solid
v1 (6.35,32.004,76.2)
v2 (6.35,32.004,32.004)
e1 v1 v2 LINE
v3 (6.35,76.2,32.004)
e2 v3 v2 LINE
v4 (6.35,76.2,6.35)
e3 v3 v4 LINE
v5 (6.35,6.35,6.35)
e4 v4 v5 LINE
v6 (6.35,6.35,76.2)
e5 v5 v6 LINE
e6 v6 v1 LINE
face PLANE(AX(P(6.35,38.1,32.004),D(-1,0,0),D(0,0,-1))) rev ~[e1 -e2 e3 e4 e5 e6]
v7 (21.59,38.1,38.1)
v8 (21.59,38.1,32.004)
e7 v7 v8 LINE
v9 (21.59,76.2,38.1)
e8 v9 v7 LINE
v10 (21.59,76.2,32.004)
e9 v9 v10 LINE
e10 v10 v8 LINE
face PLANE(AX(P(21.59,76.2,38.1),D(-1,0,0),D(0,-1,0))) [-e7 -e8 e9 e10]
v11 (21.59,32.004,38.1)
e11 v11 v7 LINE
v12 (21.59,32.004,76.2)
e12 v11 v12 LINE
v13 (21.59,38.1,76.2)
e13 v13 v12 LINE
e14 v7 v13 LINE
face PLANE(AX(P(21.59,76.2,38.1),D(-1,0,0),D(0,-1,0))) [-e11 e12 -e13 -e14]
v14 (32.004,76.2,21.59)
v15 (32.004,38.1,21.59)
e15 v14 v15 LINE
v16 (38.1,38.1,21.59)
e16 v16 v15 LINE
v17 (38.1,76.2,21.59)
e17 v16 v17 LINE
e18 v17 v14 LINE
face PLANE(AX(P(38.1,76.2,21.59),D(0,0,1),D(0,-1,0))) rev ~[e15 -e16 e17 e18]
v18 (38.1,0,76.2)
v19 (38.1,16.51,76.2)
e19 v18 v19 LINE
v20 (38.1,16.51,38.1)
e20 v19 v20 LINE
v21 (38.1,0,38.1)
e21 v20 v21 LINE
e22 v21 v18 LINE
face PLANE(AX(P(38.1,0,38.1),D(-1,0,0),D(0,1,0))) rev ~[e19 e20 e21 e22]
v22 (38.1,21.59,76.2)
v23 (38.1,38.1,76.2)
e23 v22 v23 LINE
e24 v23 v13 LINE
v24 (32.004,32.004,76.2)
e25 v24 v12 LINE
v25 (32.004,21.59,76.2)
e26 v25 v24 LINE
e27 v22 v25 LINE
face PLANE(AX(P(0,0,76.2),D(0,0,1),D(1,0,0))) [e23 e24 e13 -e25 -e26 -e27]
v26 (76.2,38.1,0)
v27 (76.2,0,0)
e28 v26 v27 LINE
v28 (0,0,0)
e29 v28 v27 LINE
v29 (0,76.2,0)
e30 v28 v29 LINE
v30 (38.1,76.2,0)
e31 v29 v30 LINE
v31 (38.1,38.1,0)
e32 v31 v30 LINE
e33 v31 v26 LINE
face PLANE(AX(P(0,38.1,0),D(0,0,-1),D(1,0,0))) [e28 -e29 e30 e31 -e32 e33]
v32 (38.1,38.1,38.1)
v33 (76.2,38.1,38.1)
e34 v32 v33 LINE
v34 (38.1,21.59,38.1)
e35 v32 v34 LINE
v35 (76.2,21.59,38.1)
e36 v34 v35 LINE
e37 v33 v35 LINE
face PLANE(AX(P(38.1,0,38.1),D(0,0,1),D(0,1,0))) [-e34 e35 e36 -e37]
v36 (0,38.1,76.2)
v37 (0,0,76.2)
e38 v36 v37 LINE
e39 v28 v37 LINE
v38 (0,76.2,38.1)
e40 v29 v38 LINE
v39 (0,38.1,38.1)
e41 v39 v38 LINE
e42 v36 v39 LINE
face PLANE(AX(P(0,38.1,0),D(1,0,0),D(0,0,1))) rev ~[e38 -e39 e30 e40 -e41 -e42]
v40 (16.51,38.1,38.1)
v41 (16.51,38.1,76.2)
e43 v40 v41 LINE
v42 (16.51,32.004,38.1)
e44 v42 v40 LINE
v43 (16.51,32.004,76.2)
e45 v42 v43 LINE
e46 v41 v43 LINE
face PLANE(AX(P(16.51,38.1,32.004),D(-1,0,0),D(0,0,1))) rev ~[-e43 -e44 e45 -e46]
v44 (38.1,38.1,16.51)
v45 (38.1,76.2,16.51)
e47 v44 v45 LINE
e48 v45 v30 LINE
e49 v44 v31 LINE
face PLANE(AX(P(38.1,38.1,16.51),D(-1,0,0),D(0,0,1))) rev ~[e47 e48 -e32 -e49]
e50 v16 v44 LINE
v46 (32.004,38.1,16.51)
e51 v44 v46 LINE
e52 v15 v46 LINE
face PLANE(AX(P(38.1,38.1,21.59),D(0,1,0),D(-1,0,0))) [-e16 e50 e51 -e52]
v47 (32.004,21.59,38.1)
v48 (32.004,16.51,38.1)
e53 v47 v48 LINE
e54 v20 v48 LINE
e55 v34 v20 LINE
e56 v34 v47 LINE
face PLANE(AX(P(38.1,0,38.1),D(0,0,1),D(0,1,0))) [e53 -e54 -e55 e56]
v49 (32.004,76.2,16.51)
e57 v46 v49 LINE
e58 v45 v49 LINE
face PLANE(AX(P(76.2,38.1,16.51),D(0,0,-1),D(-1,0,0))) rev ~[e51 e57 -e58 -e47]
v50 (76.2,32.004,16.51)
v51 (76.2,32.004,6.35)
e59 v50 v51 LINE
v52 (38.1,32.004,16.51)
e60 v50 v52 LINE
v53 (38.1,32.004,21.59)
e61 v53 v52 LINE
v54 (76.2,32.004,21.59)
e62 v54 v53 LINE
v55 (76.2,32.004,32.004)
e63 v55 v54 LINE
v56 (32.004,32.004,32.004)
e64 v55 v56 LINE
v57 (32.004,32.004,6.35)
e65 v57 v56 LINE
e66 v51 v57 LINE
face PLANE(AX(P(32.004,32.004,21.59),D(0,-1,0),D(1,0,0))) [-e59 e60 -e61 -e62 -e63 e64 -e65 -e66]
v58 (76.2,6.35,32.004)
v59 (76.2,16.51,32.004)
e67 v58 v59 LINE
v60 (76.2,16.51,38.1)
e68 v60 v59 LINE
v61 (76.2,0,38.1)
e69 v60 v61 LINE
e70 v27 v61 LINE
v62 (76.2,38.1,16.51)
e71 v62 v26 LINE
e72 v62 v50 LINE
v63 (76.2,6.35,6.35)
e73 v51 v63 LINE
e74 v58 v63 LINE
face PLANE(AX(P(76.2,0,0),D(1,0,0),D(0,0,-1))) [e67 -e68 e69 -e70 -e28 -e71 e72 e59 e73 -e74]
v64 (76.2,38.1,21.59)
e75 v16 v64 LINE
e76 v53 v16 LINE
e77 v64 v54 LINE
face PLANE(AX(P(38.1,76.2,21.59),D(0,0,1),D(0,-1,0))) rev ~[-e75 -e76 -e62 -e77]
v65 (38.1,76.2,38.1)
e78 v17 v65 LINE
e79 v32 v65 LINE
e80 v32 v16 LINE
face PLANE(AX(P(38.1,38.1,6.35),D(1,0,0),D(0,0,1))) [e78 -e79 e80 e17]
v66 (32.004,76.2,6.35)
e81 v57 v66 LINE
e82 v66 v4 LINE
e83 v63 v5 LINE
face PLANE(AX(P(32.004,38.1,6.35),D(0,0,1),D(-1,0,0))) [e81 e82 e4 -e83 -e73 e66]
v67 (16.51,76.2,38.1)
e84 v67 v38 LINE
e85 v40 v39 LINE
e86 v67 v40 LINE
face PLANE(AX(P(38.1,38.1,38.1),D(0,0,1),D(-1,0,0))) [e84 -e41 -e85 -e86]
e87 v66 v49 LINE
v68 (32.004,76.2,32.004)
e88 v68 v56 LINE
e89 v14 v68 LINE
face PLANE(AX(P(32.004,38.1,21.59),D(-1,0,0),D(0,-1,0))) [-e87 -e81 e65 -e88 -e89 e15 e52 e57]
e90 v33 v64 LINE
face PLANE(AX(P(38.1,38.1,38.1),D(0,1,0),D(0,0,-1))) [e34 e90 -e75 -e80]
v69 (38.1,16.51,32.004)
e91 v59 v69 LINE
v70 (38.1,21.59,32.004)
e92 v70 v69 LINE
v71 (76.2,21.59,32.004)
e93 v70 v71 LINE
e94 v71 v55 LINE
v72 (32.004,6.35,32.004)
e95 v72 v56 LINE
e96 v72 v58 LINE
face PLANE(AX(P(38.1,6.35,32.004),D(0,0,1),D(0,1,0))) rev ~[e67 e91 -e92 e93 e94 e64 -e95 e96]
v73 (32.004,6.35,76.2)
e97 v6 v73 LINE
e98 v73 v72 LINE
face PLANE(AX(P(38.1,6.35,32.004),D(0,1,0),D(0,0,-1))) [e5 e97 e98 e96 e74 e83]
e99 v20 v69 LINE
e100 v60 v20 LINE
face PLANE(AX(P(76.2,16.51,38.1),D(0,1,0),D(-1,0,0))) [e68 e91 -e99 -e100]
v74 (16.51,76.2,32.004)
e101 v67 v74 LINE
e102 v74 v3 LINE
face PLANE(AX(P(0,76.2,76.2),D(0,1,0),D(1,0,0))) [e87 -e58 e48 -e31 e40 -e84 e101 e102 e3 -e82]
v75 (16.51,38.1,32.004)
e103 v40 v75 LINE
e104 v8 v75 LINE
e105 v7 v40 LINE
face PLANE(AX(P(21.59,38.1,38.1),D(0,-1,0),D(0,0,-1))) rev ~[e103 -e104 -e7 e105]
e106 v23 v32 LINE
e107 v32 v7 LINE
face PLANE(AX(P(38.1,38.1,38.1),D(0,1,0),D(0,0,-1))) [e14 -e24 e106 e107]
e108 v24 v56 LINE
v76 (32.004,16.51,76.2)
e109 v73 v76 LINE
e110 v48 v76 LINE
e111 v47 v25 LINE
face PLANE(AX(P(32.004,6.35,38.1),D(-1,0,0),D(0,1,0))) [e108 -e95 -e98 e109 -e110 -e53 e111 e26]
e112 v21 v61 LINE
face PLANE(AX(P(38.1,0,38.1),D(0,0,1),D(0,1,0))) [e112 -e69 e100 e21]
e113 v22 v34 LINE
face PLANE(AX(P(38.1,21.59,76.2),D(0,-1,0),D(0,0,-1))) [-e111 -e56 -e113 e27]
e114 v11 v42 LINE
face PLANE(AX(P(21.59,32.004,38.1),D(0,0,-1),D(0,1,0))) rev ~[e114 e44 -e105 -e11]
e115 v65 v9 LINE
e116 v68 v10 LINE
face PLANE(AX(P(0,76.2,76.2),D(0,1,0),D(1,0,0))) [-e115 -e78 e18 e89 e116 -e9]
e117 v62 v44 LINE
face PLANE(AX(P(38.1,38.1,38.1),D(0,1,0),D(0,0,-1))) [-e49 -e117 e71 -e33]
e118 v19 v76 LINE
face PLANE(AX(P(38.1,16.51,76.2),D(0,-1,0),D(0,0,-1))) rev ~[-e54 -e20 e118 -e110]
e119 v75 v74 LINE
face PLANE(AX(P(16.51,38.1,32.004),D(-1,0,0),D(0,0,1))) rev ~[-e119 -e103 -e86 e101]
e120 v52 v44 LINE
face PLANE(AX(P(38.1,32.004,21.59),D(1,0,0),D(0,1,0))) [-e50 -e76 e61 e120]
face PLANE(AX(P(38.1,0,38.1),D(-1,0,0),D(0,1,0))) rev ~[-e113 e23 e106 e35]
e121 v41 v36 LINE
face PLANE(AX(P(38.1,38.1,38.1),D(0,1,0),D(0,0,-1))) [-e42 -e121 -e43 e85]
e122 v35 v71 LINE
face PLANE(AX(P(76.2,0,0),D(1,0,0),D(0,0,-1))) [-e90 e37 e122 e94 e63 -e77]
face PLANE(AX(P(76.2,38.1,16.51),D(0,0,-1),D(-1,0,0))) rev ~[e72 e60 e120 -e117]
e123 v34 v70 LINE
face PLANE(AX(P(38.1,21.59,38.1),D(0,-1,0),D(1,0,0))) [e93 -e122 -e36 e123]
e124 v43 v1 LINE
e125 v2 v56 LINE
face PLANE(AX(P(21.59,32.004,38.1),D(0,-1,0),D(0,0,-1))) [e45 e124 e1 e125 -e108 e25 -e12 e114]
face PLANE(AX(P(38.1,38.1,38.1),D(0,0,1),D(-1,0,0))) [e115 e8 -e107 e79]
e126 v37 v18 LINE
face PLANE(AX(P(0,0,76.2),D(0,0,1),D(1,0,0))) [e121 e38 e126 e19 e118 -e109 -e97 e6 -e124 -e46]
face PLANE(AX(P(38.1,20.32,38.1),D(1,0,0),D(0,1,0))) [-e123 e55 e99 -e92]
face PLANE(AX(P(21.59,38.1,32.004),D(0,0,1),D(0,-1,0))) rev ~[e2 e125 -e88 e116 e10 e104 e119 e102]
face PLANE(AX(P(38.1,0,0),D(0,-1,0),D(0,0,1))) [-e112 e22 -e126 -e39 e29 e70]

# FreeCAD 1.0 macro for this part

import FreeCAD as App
import Part
import Sketcher
from FreeCAD import Vector
Q = App.Units.Quantity

doc = App.newDocument("Part")
body = doc.addObject("PartDesign::Body", "Body")

# Sketch on XY plane
sketch1 = doc.addObject("Sketcher::SketchObject", "Sketch")
body.addObject(sketch1)
sketch1.AttachmentSupport = (doc.XY_Plane, [""])
sketch1.MapMode = "FlatFace"
sketch1.addGeometry([
    Part.LineSegment(Vector(0, 38, 0), Vector(0, 0, 0)),
    Part.LineSegment(Vector(0, 0, 0), Vector(38, 0, 0)),
    Part.LineSegment(Vector(38, 0, 0), Vector(38, 38, 0)),
    Part.LineSegment(Vector(38, 38, 0), Vector(0, 38, 0)),
], False)
sketch1.addConstraint([
    Sketcher.Constraint("Coincident", 0, 2, 1, 1),
    Sketcher.Constraint("Coincident", 1, 2, 2, 1),
    Sketcher.Constraint("Coincident", 2, 2, 3, 1),
    Sketcher.Constraint("Coincident", 3, 2, 0, 1),
    Sketcher.Constraint("Vertical", 0),
    Sketcher.Constraint("Horizontal", 1),
    Sketcher.Constraint("Vertical", 2),
    Sketcher.Constraint("Horizontal", 3),
    Sketcher.Constraint("Coincident", 0, 2, -1, 1),
    Sketcher.Constraint("Equal", 3, 0),
    Sketcher.Constraint("DistanceX", 1, 1, 1, 2, Q("1.5 in")),
])
pad1 = doc.addObject("PartDesign::Pad", "Pad")
body.addObject(pad1)
pad1.Profile = sketch1
pad1.Length = Q("1.5 in")

# Sketch on XY plane
sketch2 = doc.addObject("Sketcher::SketchObject", "Sketch001")
body.addObject(sketch2)
sketch2.AttachmentSupport = (doc.XY_Plane, [""])
sketch2.MapMode = "FlatFace"
sketch2.AttachmentOffset = App.Placement(Vector(0, 0, 1.5 * 25.4), App.Rotation())
sketch2.addGeometry([
    Part.LineSegment(Vector(6, 32, 0), Vector(6, 6, 0)),
    Part.LineSegment(Vector(6, 6, 0), Vector(32, 6, 0)),
    Part.LineSegment(Vector(32, 6, 0), Vector(32, 32, 0)),
    Part.LineSegment(Vector(32, 32, 0), Vector(6, 32, 0)),
], False)
sketch2.addConstraint([
    Sketcher.Constraint("Coincident", 0, 2, 1, 1),
    Sketcher.Constraint("Coincident", 1, 2, 2, 1),
    Sketcher.Constraint("Coincident", 2, 2, 3, 1),
    Sketcher.Constraint("Coincident", 3, 2, 0, 1),
    Sketcher.Constraint("Vertical", 0),
    Sketcher.Constraint("Horizontal", 1),
    Sketcher.Constraint("Vertical", 2),
    Sketcher.Constraint("Horizontal", 3),
    Sketcher.Constraint("Equal", 3, 0),
    Sketcher.Constraint("DistanceX", 1, 1, 1, 2, Q("1.01 in")),
    Sketcher.Constraint("DistanceX", -1, 1, 0, 2, Q("0.25 in")),
    Sketcher.Constraint("DistanceY", -1, 1, 0, 2, Q("0.25 in")),
])
pocket1 = doc.addObject("PartDesign::Pocket", "Pocket")
body.addObject(pocket1)
pocket1.Profile = sketch2
pocket1.Length = Q("1.25 in")

# Sketch on XY plane
sketch3 = doc.addObject("Sketcher::SketchObject", "Sketch002")
body.addObject(sketch3)
sketch3.AttachmentSupport = (doc.XY_Plane, [""])
sketch3.MapMode = "FlatFace"
sketch3.AttachmentOffset = App.Placement(Vector(0, 0, 1.5 * 25.4), App.Rotation())
sketch3.addGeometry([
    Part.LineSegment(Vector(0, 38, 0), Vector(0, 0, 0)),  # 0
    Part.LineSegment(Vector(0, 0, 0), Vector(38, 0, 0)),  # 1
    Part.LineSegment(Vector(38, 0, 0), Vector(38, 38, 0)),  # 2
    Part.LineSegment(Vector(38, 38, 0), Vector(0, 38, 0)),  # 3
    Part.LineSegment(Vector(32, 6, 0), Vector(6, 6, 0)),  # 4
    Part.LineSegment(Vector(6, 6, 0), Vector(6, 32, 0)),  # 5
    Part.LineSegment(Vector(6, 32, 0), Vector(32, 32, 0)),  # 6
    Part.LineSegment(Vector(32, 32, 0), Vector(32, 6, 0)),  # 7
], False)
sketch3.addConstraint([
    Sketcher.Constraint("Coincident", 0, 2, 1, 1),
    Sketcher.Constraint("Coincident", 1, 2, 2, 1),
    Sketcher.Constraint("Coincident", 2, 2, 3, 1),
    Sketcher.Constraint("Coincident", 3, 2, 0, 1),
    Sketcher.Constraint("Coincident", 4, 2, 5, 1),
    Sketcher.Constraint("Coincident", 5, 2, 6, 1),
    Sketcher.Constraint("Coincident", 6, 2, 7, 1),
    Sketcher.Constraint("Coincident", 7, 2, 4, 1),
    Sketcher.Constraint("Vertical", 0),
    Sketcher.Constraint("Horizontal", 1),
    Sketcher.Constraint("Vertical", 2),
    Sketcher.Constraint("Horizontal", 3),
    Sketcher.Constraint("Horizontal", 4),
    Sketcher.Constraint("Vertical", 5),
    Sketcher.Constraint("Horizontal", 6),
    Sketcher.Constraint("Vertical", 7),
    Sketcher.Constraint("Coincident", 0, 2, -1, 1),
    Sketcher.Constraint("Equal", 3, 0),
    Sketcher.Constraint("Equal", 6, 5),
    Sketcher.Constraint("DistanceX", 1, 1, 1, 2, Q("1.5 in")),
    Sketcher.Constraint("DistanceX", 4, 2, 4, 1, Q("1.01 in")),
    Sketcher.Constraint("DistanceX", -1, 1, 4, 2, Q("0.25 in")),
    Sketcher.Constraint("DistanceY", -1, 1, 4, 2, Q("0.25 in")),
])
pad2 = doc.addObject("PartDesign::Pad", "Pad001")
body.addObject(pad2)
pad2.Profile = sketch3
pad2.Length = Q("1.5 in")

# Sketch on YZ plane
sketch4 = doc.addObject("Sketcher::SketchObject", "Sketch003")
body.addObject(sketch4)
sketch4.AttachmentSupport = (doc.YZ_Plane, [""])
sketch4.MapMode = "FlatFace"
sketch4.AttachmentOffset = App.Placement(Vector(0, 0, 1.5 * 25.4), App.Rotation())
sketch4.addGeometry([
    Part.LineSegment(Vector(0, 38, 0), Vector(0, 0, 0)),  # 0
    Part.LineSegment(Vector(0, 0, 0), Vector(38, 0, 0)),  # 1
    Part.LineSegment(Vector(38, 0, 0), Vector(38, 38, 0)),  # 2
    Part.LineSegment(Vector(38, 38, 0), Vector(6, 38, 0)),  # 3
    Part.LineSegment(Vector(6, 38, 0), Vector(0, 38, 0)),  # 4
    Part.LineSegment(Vector(6, 6, 0), Vector(6, 32, 0)),  # 5
    Part.LineSegment(Vector(6, 32, 0), Vector(32, 32, 0)),  # 6
    Part.LineSegment(Vector(32, 32, 0), Vector(32, 6, 0)),  # 7
    Part.LineSegment(Vector(32, 6, 0), Vector(6, 6, 0)),  # 8
], False)
sketch4.addConstraint([
    Sketcher.Constraint("Coincident", 0, 2, 1, 1),
    Sketcher.Constraint("Coincident", 1, 2, 2, 1),
    Sketcher.Constraint("Coincident", 2, 2, 3, 1),
    Sketcher.Constraint("Coincident", 3, 2, 4, 1),
    Sketcher.Constraint("Coincident", 4, 2, 0, 1),
    Sketcher.Constraint("Coincident", 5, 2, 6, 1),
    Sketcher.Constraint("Coincident", 6, 2, 7, 1),
    Sketcher.Constraint("Coincident", 7, 2, 8, 1),
    Sketcher.Constraint("Coincident", 8, 2, 5, 1),
    Sketcher.Constraint("Vertical", 0),
    Sketcher.Constraint("Horizontal", 1),
    Sketcher.Constraint("Vertical", 2),
    Sketcher.Constraint("Horizontal", 3),
    Sketcher.Constraint("Horizontal", 4),
    Sketcher.Constraint("Vertical", 5),
    Sketcher.Constraint("Horizontal", 6),
    Sketcher.Constraint("Vertical", 7),
    Sketcher.Constraint("Horizontal", 8),
    Sketcher.Constraint("Coincident", 0, 2, -1, 1),
    Sketcher.Constraint("Vertical", 3, 2, 5, 2),
    Sketcher.Constraint("Equal", 1, 0),
    Sketcher.Constraint("Equal", 8, 5),
    Sketcher.Constraint("DistanceX", 1, 1, 1, 2, Q("1.5 in")),
    Sketcher.Constraint("DistanceX", 6, 1, 6, 2, Q("1.01 in")),
    Sketcher.Constraint("DistanceX", 3, 2, 3, 1, Q("1.25 in")),
    Sketcher.Constraint("DistanceY", -1, 1, 5, 2, Q("1.26 in")),
])
pad3 = doc.addObject("PartDesign::Pad", "Pad002")
body.addObject(pad3)
pad3.Profile = sketch4
pad3.Length = Q("1.5 in")

# Sketch on YZ plane
sketch5 = doc.addObject("Sketcher::SketchObject", "Sketch004")
body.addObject(sketch5)
sketch5.AttachmentSupport = (doc.YZ_Plane, [""])
sketch5.MapMode = "FlatFace"
sketch5.AttachmentOffset = App.Placement(Vector(0, 0, 1.5 * 25.4), App.Rotation())
sketch5.addGeometry([
    Part.LineSegment(Vector(32, 32, 0), Vector(6, 32, 0)),
    Part.LineSegment(Vector(6, 32, 0), Vector(6, 6, 0)),
    Part.LineSegment(Vector(6, 6, 0), Vector(32, 6, 0)),
    Part.LineSegment(Vector(32, 6, 0), Vector(32, 32, 0)),
], False)
sketch5.addConstraint([
    Sketcher.Constraint("Coincident", 0, 2, 1, 1),
    Sketcher.Constraint("Coincident", 1, 2, 2, 1),
    Sketcher.Constraint("Coincident", 2, 2, 3, 1),
    Sketcher.Constraint("Coincident", 3, 2, 0, 1),
    Sketcher.Constraint("Horizontal", 0),
    Sketcher.Constraint("Vertical", 1),
    Sketcher.Constraint("Horizontal", 2),
    Sketcher.Constraint("Vertical", 3),
    Sketcher.Constraint("Equal", 2, 1),
    Sketcher.Constraint("DistanceX", 0, 2, 0, 1, Q("1.01 in")),
    Sketcher.Constraint("DistanceX", -1, 1, 0, 2, Q("0.25 in")),
    Sketcher.Constraint("DistanceY", -1, 1, 0, 2, Q("1.26 in")),
])
pocket2 = doc.addObject("PartDesign::Pocket", "Pocket001")
body.addObject(pocket2)
pocket2.Profile = sketch5
pocket2.Length = Q("1.25 in")

# Sketch on XZ plane
sketch6 = doc.addObject("Sketcher::SketchObject", "Sketch005")
body.addObject(sketch6)
sketch6.AttachmentSupport = (doc.XZ_Plane, [""])
sketch6.MapMode = "FlatFace"
sketch6.AttachmentOffset = App.Placement(Vector(0, 0, -1.5 * 25.4), App.Rotation())
sketch6.addGeometry([
    Part.LineSegment(Vector(38, 38, 0), Vector(38, 6, 0)),  # 0
    Part.LineSegment(Vector(38, 6, 0), Vector(38, 0, 0)),  # 1
    Part.LineSegment(Vector(38, 0, 0), Vector(0, 0, 0)),  # 2
    Part.LineSegment(Vector(0, 0, 0), Vector(0, 38, 0)),  # 3
    Part.LineSegment(Vector(0, 38, 0), Vector(38, 38, 0)),  # 4
    Part.LineSegment(Vector(6, 6, 0), Vector(32, 6, 0)),  # 5
    Part.LineSegment(Vector(32, 6, 0), Vector(32, 32, 0)),  # 6
    Part.LineSegment(Vector(32, 32, 0), Vector(6, 32, 0)),  # 7
    Part.LineSegment(Vector(6, 32, 0), Vector(6, 6, 0)),  # 8
], False)
sketch6.addConstraint([
    Sketcher.Constraint("Coincident", 0, 2, 1, 1),
    Sketcher.Constraint("Coincident", 1, 2, 2, 1),
    Sketcher.Constraint("Coincident", 2, 2, 3, 1),
    Sketcher.Constraint("Coincident", 3, 2, 4, 1),
    Sketcher.Constraint("Coincident", 4, 2, 0, 1),
    Sketcher.Constraint("Coincident", 5, 2, 6, 1),
    Sketcher.Constraint("Coincident", 6, 2, 7, 1),
    Sketcher.Constraint("Coincident", 7, 2, 8, 1),
    Sketcher.Constraint("Coincident", 8, 2, 5, 1),
    Sketcher.Constraint("Vertical", 0),
    Sketcher.Constraint("Vertical", 1),
    Sketcher.Constraint("Horizontal", 2),
    Sketcher.Constraint("Vertical", 3),
    Sketcher.Constraint("Horizontal", 4),
    Sketcher.Constraint("Horizontal", 5),
    Sketcher.Constraint("Vertical", 6),
    Sketcher.Constraint("Horizontal", 7),
    Sketcher.Constraint("Vertical", 8),
    Sketcher.Constraint("Coincident", 2, 2, -1, 1),
    Sketcher.Constraint("Horizontal", 0, 2, 5, 2),
    Sketcher.Constraint("Equal", 4, 3),
    Sketcher.Constraint("Equal", 7, 6),
    Sketcher.Constraint("DistanceX", 5, 1, 5, 2, Q("1.01 in")),
    Sketcher.Constraint("DistanceX", 2, 2, 2, 1, Q("1.5 in")),
    Sketcher.Constraint("DistanceY", 0, 2, 0, 1, Q("1.25 in")),
    Sketcher.Constraint("DistanceX", -1, 1, 5, 2, Q("1.26 in")),
])
pad4 = doc.addObject("PartDesign::Pad", "Pad003")
body.addObject(pad4)
pad4.Profile = sketch6
pad4.Length = Q("1.5 in")
pad4.Reversed = True

# Sketch on XZ plane
sketch7 = doc.addObject("Sketcher::SketchObject", "Sketch006")
body.addObject(sketch7)
sketch7.AttachmentSupport = (doc.XZ_Plane, [""])
sketch7.MapMode = "FlatFace"
sketch7.AttachmentOffset = App.Placement(Vector(0, 0, -1.5 * 25.4), App.Rotation())
sketch7.addGeometry([
    Part.LineSegment(Vector(6, 6, 0), Vector(6, 32, 0)),
    Part.LineSegment(Vector(6, 32, 0), Vector(32, 32, 0)),
    Part.LineSegment(Vector(32, 32, 0), Vector(32, 6, 0)),
    Part.LineSegment(Vector(32, 6, 0), Vector(6, 6, 0)),
], False)
sketch7.addConstraint([
    Sketcher.Constraint("Coincident", 0, 2, 1, 1),
    Sketcher.Constraint("Coincident", 1, 2, 2, 1),
    Sketcher.Constraint("Coincident", 2, 2, 3, 1),
    Sketcher.Constraint("Coincident", 3, 2, 0, 1),
    Sketcher.Constraint("Vertical", 0),
    Sketcher.Constraint("Horizontal", 1),
    Sketcher.Constraint("Vertical", 2),
    Sketcher.Constraint("Horizontal", 3),
    Sketcher.Constraint("Equal", 3, 0),
    Sketcher.Constraint("DistanceX", 1, 1, 1, 2, Q("1.01 in")),
    Sketcher.Constraint("DistanceX", -1, 1, 0, 2, Q("0.25 in")),
    Sketcher.Constraint("DistanceY", -1, 1, 0, 2, Q("1.26 in")),
])
pocket3 = doc.addObject("PartDesign::Pocket", "Pocket002")
body.addObject(pocket3)
pocket3.Profile = sketch7
pocket3.Length = Q("0.25 in")
pocket3.Reversed = True

# Sketch on XZ plane
sketch8 = doc.addObject("Sketcher::SketchObject", "Sketch007")
body.addObject(sketch8)
sketch8.AttachmentSupport = (doc.XZ_Plane, [""])
sketch8.MapMode = "FlatFace"
sketch8.AttachmentOffset = App.Placement(Vector(0, 0, -3 * 25.4), App.Rotation())
sketch8.addGeometry([
    Part.LineSegment(Vector(32, 20.3, 0), Vector(38.1, 20.3, 0)),
    Part.LineSegment(Vector(38.1, 20.3, 0), Vector(38.1, 17.8, 0)),
    Part.LineSegment(Vector(38.1, 17.8, 0), Vector(32, 17.8, 0)),
    Part.LineSegment(Vector(32, 17.8, 0), Vector(32, 20.3, 0)),
], False)
sketch8.addConstraint([
    Sketcher.Constraint("Coincident", 0, 2, 1, 1),
    Sketcher.Constraint("Coincident", 1, 2, 2, 1),
    Sketcher.Constraint("Coincident", 2, 2, 3, 1),
    Sketcher.Constraint("Coincident", 3, 2, 0, 1),
    Sketcher.Constraint("Horizontal", 0),
    Sketcher.Constraint("Vertical", 1),
    Sketcher.Constraint("Horizontal", 2),
    Sketcher.Constraint("Vertical", 3),
    Sketcher.Constraint("DistanceY", 1, 2, 1, 1, Q("0.1 in")),
    Sketcher.Constraint("DistanceX", 0, 1, 0, 2, Q("0.24 in")),
    Sketcher.Constraint("DistanceX", -1, 1, 0, 2, Q("1.5 in")),
    Sketcher.Constraint("DistanceY", -1, 1, 0, 2, Q("0.8 in")),
])
pocket4 = doc.addObject("PartDesign::Pocket", "Pocket003")
body.addObject(pocket4)
pocket4.Profile = sketch8
pocket4.Length = Q("1.5 in")
pocket4.Reversed = True

# Sketch on XZ plane
sketch9 = doc.addObject("Sketcher::SketchObject", "Sketch008")
body.addObject(sketch9)
sketch9.AttachmentSupport = (doc.XZ_Plane, [""])
sketch9.MapMode = "FlatFace"
sketch9.AttachmentOffset = App.Placement(Vector(0, 0, -1.5 * 25.4), App.Rotation())
sketch9.addGeometry([
    Part.LineSegment(Vector(76.2, 20.3, 0), Vector(76.2, 17.8, 0)),
    Part.LineSegment(Vector(76.2, 17.8, 0), Vector(32, 17.8, 0)),
    Part.LineSegment(Vector(32, 17.8, 0), Vector(32, 20.3, 0)),
    Part.LineSegment(Vector(32, 20.3, 0), Vector(76.2, 20.3, 0)),
], False)
sketch9.addConstraint([
    Sketcher.Constraint("Coincident", 0, 2, 1, 1),
    Sketcher.Constraint("Coincident", 1, 2, 2, 1),
    Sketcher.Constraint("Coincident", 2, 2, 3, 1),
    Sketcher.Constraint("Coincident", 3, 2, 0, 1),
    Sketcher.Constraint("Vertical", 0),
    Sketcher.Constraint("Horizontal", 1),
    Sketcher.Constraint("Vertical", 2),
    Sketcher.Constraint("Horizontal", 3),
    Sketcher.Constraint("DistanceY", 0, 2, 0, 1, Q("0.1 in")),
    Sketcher.Constraint("DistanceX", -1, 1, 0, 2, Q("3 in")),
    Sketcher.Constraint("DistanceX", 1, 2, 1, 1, Q("1.74 in")),
    Sketcher.Constraint("DistanceY", -1, 1, 0, 2, Q("0.7 in")),
])
pocket5 = doc.addObject("PartDesign::Pocket", "Pocket004")
body.addObject(pocket5)
pocket5.Profile = sketch9
pocket5.Length = Q("0.25 in")
pocket5.Reversed = True

# Sketch on XZ plane
sketch10 = doc.addObject("Sketcher::SketchObject", "Sketch009")
body.addObject(sketch10)
sketch10.AttachmentSupport = (doc.XZ_Plane, [""])
sketch10.MapMode = "FlatFace"
sketch10.AttachmentOffset = App.Placement(Vector(0, 0, -3 * 25.4), App.Rotation())
sketch10.addGeometry([
    Part.LineSegment(Vector(17.8, 32, 0), Vector(17.8, 38.1, 0)),
    Part.LineSegment(Vector(17.8, 38.1, 0), Vector(20.3, 38.1, 0)),
    Part.LineSegment(Vector(20.3, 38.1, 0), Vector(20.3, 32, 0)),
    Part.LineSegment(Vector(20.3, 32, 0), Vector(17.8, 32, 0)),
], False)
sketch10.addConstraint([
    Sketcher.Constraint("Coincident", 0, 2, 1, 1),
    Sketcher.Constraint("Coincident", 1, 2, 2, 1),
    Sketcher.Constraint("Coincident", 2, 2, 3, 1),
    Sketcher.Constraint("Coincident", 3, 2, 0, 1),
    Sketcher.Constraint("Vertical", 0),
    Sketcher.Constraint("Horizontal", 1),
    Sketcher.Constraint("Vertical", 2),
    Sketcher.Constraint("Horizontal", 3),
    Sketcher.Constraint("DistanceX", 1, 1, 1, 2, Q("0.1 in")),
    Sketcher.Constraint("DistanceY", 0, 1, 0, 2, Q("0.24 in")),
    Sketcher.Constraint("DistanceX", -1, 1, 0, 2, Q("0.7 in")),
    Sketcher.Constraint("DistanceY", -1, 1, 0, 2, Q("1.5 in")),
])
pocket6 = doc.addObject("PartDesign::Pocket", "Pocket005")
body.addObject(pocket6)
pocket6.Profile = sketch10
pocket6.Length = Q("1.5 in")
pocket6.Reversed = True

# Sketch on XZ plane
sketch11 = doc.addObject("Sketcher::SketchObject", "Sketch010")
body.addObject(sketch11)
sketch11.AttachmentSupport = (doc.XZ_Plane, [""])
sketch11.MapMode = "FlatFace"
sketch11.AttachmentOffset = App.Placement(Vector(0, 0, -1.5 * 25.4), App.Rotation())
sketch11.addGeometry([
    Part.LineSegment(Vector(20.3, 76.2, 0), Vector(20.3, 32, 0)),
    Part.LineSegment(Vector(20.3, 32, 0), Vector(17.8, 32, 0)),
    Part.LineSegment(Vector(17.8, 32, 0), Vector(17.8, 76.2, 0)),
    Part.LineSegment(Vector(17.8, 76.2, 0), Vector(20.3, 76.2, 0)),
], False)
sketch11.addConstraint([
    Sketcher.Constraint("Coincident", 0, 2, 1, 1),
    Sketcher.Constraint("Coincident", 1, 2, 2, 1),
    Sketcher.Constraint("Coincident", 2, 2, 3, 1),
    Sketcher.Constraint("Coincident", 3, 2, 0, 1),
    Sketcher.Constraint("Vertical", 0),
    Sketcher.Constraint("Horizontal", 1),
    Sketcher.Constraint("Vertical", 2),
    Sketcher.Constraint("Horizontal", 3),
    Sketcher.Constraint("DistanceX", 1, 2, 1, 1, Q("0.1 in")),
    Sketcher.Constraint("DistanceY", -1, 1, 2, 2, Q("3 in")),
    Sketcher.Constraint("DistanceY", 0, 2, 0, 1, Q("1.74 in")),
    Sketcher.Constraint("DistanceX", -1, 1, 0, 2, Q("0.8 in")),
])
pocket7 = doc.addObject("PartDesign::Pocket", "Pocket006")
body.addObject(pocket7)
pocket7.Profile = sketch11
pocket7.Length = Q("0.25 in")
pocket7.Reversed = True

# Sketch on YZ plane
sketch12 = doc.addObject("Sketcher::SketchObject", "Sketch011")
body.addObject(sketch12)
sketch12.AttachmentSupport = (doc.YZ_Plane, [""])
sketch12.MapMode = "FlatFace"
sketch12.AttachmentOffset = App.Placement(Vector(0, 0, 1.5 * 25.4), App.Rotation())
sketch12.addGeometry([
    Part.LineSegment(Vector(17.8, 76.2, 0), Vector(17.8, 38.1, 0)),
    Part.LineSegment(Vector(17.8, 38.1, 0), Vector(20.3, 38.1, 0)),
    Part.LineSegment(Vector(20.3, 38.1, 0), Vector(20.3, 76.2, 0)),
    Part.LineSegment(Vector(20.3, 76.2, 0), Vector(17.8, 76.2, 0)),
], False)
sketch12.addConstraint([
    Sketcher.Constraint("Coincident", 0, 2, 1, 1),
    Sketcher.Constraint("Coincident", 1, 2, 2, 1),
    Sketcher.Constraint("Coincident", 2, 2, 3, 1),
    Sketcher.Constraint("Coincident", 3, 2, 0, 1),
    Sketcher.Constraint("Vertical", 0),
    Sketcher.Constraint("Horizontal", 1),
    Sketcher.Constraint("Vertical", 2),
    Sketcher.Constraint("Horizontal", 3),
    Sketcher.Constraint("DistanceX", 1, 1, 1, 2, Q("0.1 in")),
    Sketcher.Constraint("DistanceY", 0, 2, 0, 1, Q("1.5 in")),
    Sketcher.Constraint("DistanceY", -1, 1, 2, 2, Q("3 in")),
    Sketcher.Constraint("DistanceX", -1, 1, 0, 2, Q("0.7 in")),
])
pocket8 = doc.addObject("PartDesign::Pocket", "Pocket007")
body.addObject(pocket8)
pocket8.Profile = sketch12
pocket8.Length = Q("0.25 in")

# Sketch on XY plane
sketch13 = doc.addObject("Sketcher::SketchObject", "Sketch012")
body.addObject(sketch13)
sketch13.AttachmentSupport = (doc.XY_Plane, [""])
sketch13.MapMode = "FlatFace"
sketch13.AttachmentOffset = App.Placement(Vector(0, 0, 1.5 * 25.4), App.Rotation())
sketch13.addGeometry([
    Part.LineSegment(Vector(38.1, 20.3, 0), Vector(38.1, 17.8, 0)),
    Part.LineSegment(Vector(38.1, 17.8, 0), Vector(76.2, 17.8, 0)),
    Part.LineSegment(Vector(76.2, 17.8, 0), Vector(76.2, 20.3, 0)),
    Part.LineSegment(Vector(76.2, 20.3, 0), Vector(38.1, 20.3, 0)),
], False)
sketch13.addConstraint([
    Sketcher.Constraint("Coincident", 0, 2, 1, 1),
    Sketcher.Constraint("Coincident", 1, 2, 2, 1),
    Sketcher.Constraint("Coincident", 2, 2, 3, 1),
    Sketcher.Constraint("Coincident", 3, 2, 0, 1),
    Sketcher.Constraint("Vertical", 0),
    Sketcher.Constraint("Horizontal", 1),
    Sketcher.Constraint("Vertical", 2),
    Sketcher.Constraint("Horizontal", 3),
    Sketcher.Constraint("DistanceX", 1, 1, 1, 2, Q("1.5 in")),
    Sketcher.Constraint("DistanceY", 0, 2, 0, 1, Q("0.1 in")),
    Sketcher.Constraint("DistanceX", -1, 1, 0, 2, Q("1.5 in")),
    Sketcher.Constraint("DistanceY", -1, 1, 0, 2, Q("0.7 in")),
])
pocket9 = doc.addObject("PartDesign::Pocket", "Pocket008")
body.addObject(pocket9)
pocket9.Profile = sketch13
pocket9.Length = Q("0.25 in")

# Sketch on XY plane
sketch14 = doc.addObject("Sketcher::SketchObject", "Sketch013")
body.addObject(sketch14)
sketch14.AttachmentSupport = (doc.XY_Plane, [""])
sketch14.MapMode = "FlatFace"
sketch14.AttachmentOffset = App.Placement(Vector(0, 0, 1.5 * 25.4), App.Rotation())
sketch14.addGeometry([
    Part.LineSegment(Vector(20.3, 76.2, 0), Vector(20.3, 38.1, 0)),
    Part.LineSegment(Vector(20.3, 38.1, 0), Vector(21.6, 38.1, 0)),
    Part.LineSegment(Vector(21.6, 38.1, 0), Vector(21.6, 76.2, 0)),
    Part.LineSegment(Vector(21.6, 76.2, 0), Vector(20.3, 76.2, 0)),
], False)
sketch14.addConstraint([
    Sketcher.Constraint("Coincident", 0, 2, 1, 1),
    Sketcher.Constraint("Coincident", 1, 2, 2, 1),
    Sketcher.Constraint("Coincident", 2, 2, 3, 1),
    Sketcher.Constraint("Coincident", 3, 2, 0, 1),
    Sketcher.Constraint("Vertical", 0),
    Sketcher.Constraint("Horizontal", 1),
    Sketcher.Constraint("Vertical", 2),
    Sketcher.Constraint("Horizontal", 3),
    Sketcher.Constraint("DistanceX", 1, 1, 1, 2, Q("0.05 in")),
    Sketcher.Constraint("DistanceY", 0, 2, 0, 1, Q("1.5 in")),
    Sketcher.Constraint("DistanceY", -1, 1, 2, 2, Q("3 in")),
    Sketcher.Constraint("DistanceX", -1, 1, 0, 2, Q("0.8 in")),
])
pocket10 = doc.addObject("PartDesign::Pocket", "Pocket009")
body.addObject(pocket10)
pocket10.Profile = sketch14
pocket10.Length = Q("0.25 in")

# Sketch on XZ plane
sketch15 = doc.addObject("Sketcher::SketchObject", "Sketch014")
body.addObject(sketch15)
sketch15.AttachmentSupport = (doc.XZ_Plane, [""])
sketch15.MapMode = "FlatFace"
sketch15.AttachmentOffset = App.Placement(Vector(0, 0, -1.5 * 25.4), App.Rotation())
sketch15.addGeometry([
    Part.LineSegment(Vector(20.3, 32, 0), Vector(20.3, 76.2, 0)),
    Part.LineSegment(Vector(20.3, 76.2, 0), Vector(21.6, 76.2, 0)),
    Part.LineSegment(Vector(21.6, 76.2, 0), Vector(21.6, 32, 0)),
    Part.LineSegment(Vector(21.6, 32, 0), Vector(20.3, 32, 0)),
], False)
sketch15.addConstraint([
    Sketcher.Constraint("Coincident", 0, 2, 1, 1),
    Sketcher.Constraint("Coincident", 1, 2, 2, 1),
    Sketcher.Constraint("Coincident", 2, 2, 3, 1),
    Sketcher.Constraint("Coincident", 3, 2, 0, 1),
    Sketcher.Constraint("Vertical", 0),
    Sketcher.Constraint("Horizontal", 1),
    Sketcher.Constraint("Vertical", 2),
    Sketcher.Constraint("Horizontal", 3),
    Sketcher.Constraint("DistanceX", 1, 1, 1, 2, Q("0.05 in")),
    Sketcher.Constraint("DistanceY", -1, 1, 0, 2, Q("3 in")),
    Sketcher.Constraint("DistanceY", 0, 1, 0, 2, Q("1.74 in")),
    Sketcher.Constraint("DistanceX", -1, 1, 0, 2, Q("0.8 in")),
])
pocket11 = doc.addObject("PartDesign::Pocket", "Pocket010")
body.addObject(pocket11)
pocket11.Profile = sketch15
pocket11.Length = Q("0.25 in")
pocket11.Reversed = True

# Sketch on XY plane
sketch16 = doc.addObject("Sketcher::SketchObject", "Sketch015")
body.addObject(sketch16)
sketch16.AttachmentSupport = (doc.XY_Plane, [""])
sketch16.MapMode = "FlatFace"
sketch16.AttachmentOffset = App.Placement(Vector(0, 0, 1.5 * 25.4), App.Rotation())
sketch16.addGeometry([
    Part.LineSegment(Vector(16.5, 38.1, 0), Vector(17.8, 38.1, 0)),
    Part.LineSegment(Vector(17.8, 38.1, 0), Vector(17.8, 76.2, 0)),
    Part.LineSegment(Vector(17.8, 76.2, 0), Vector(16.5, 76.2, 0)),
    Part.LineSegment(Vector(16.5, 76.2, 0), Vector(16.5, 38.1, 0)),
], False)
sketch16.addConstraint([
    Sketcher.Constraint("Coincident", 0, 2, 1, 1),
    Sketcher.Constraint("Coincident", 1, 2, 2, 1),
    Sketcher.Constraint("Coincident", 2, 2, 3, 1),
    Sketcher.Constraint("Coincident", 3, 2, 0, 1),
    Sketcher.Constraint("Horizontal", 0),
    Sketcher.Constraint("Vertical", 1),
    Sketcher.Constraint("Horizontal", 2),
    Sketcher.Constraint("Vertical", 3),
    Sketcher.Constraint("DistanceX", 0, 1, 0, 2, Q("0.05 in")),
    Sketcher.Constraint("DistanceY", 1, 1, 1, 2, Q("1.5 in")),
    Sketcher.Constraint("DistanceY", -1, 1, 1, 2, Q("3 in")),
    Sketcher.Constraint("DistanceX", -1, 1, 0, 2, Q("0.7 in")),
])
pocket12 = doc.addObject("PartDesign::Pocket", "Pocket011")
body.addObject(pocket12)
pocket12.Profile = sketch16
pocket12.Length = Q("0.25 in")

# Sketch on XZ plane
sketch17 = doc.addObject("Sketcher::SketchObject", "Sketch016")
body.addObject(sketch17)
sketch17.AttachmentSupport = (doc.XZ_Plane, [""])
sketch17.MapMode = "FlatFace"
sketch17.AttachmentOffset = App.Placement(Vector(0, 0, -1.5 * 25.4), App.Rotation())
sketch17.addGeometry([
    Part.LineSegment(Vector(17.8, 76.2, 0), Vector(17.8, 32, 0)),
    Part.LineSegment(Vector(17.8, 32, 0), Vector(16.5, 32, 0)),
    Part.LineSegment(Vector(16.5, 32, 0), Vector(16.5, 76.2, 0)),
    Part.LineSegment(Vector(16.5, 76.2, 0), Vector(17.8, 76.2, 0)),
], False)
sketch17.addConstraint([
    Sketcher.Constraint("Coincident", 0, 2, 1, 1),
    Sketcher.Constraint("Coincident", 1, 2, 2, 1),
    Sketcher.Constraint("Coincident", 2, 2, 3, 1),
    Sketcher.Constraint("Coincident", 3, 2, 0, 1),
    Sketcher.Constraint("Vertical", 0),
    Sketcher.Constraint("Horizontal", 1),
    Sketcher.Constraint("Vertical", 2),
    Sketcher.Constraint("Horizontal", 3),
    Sketcher.Constraint("DistanceX", 1, 2, 1, 1, Q("0.05 in")),
    Sketcher.Constraint("DistanceY", -1, 1, 2, 2, Q("3 in")),
    Sketcher.Constraint("DistanceY", 0, 2, 0, 1, Q("1.74 in")),
    Sketcher.Constraint("DistanceX", -1, 1, 0, 2, Q("0.7 in")),
])
pocket13 = doc.addObject("PartDesign::Pocket", "Pocket012")
body.addObject(pocket13)
pocket13.Profile = sketch17
pocket13.Length = Q("0.25 in")
pocket13.Reversed = True

# Sketch on YZ plane
sketch18 = doc.addObject("Sketcher::SketchObject", "Sketch017")
body.addObject(sketch18)
sketch18.AttachmentSupport = (doc.YZ_Plane, [""])
sketch18.MapMode = "FlatFace"
sketch18.AttachmentOffset = App.Placement(Vector(0, 0, 1.5 * 25.4), App.Rotation())
sketch18.addGeometry([
    Part.LineSegment(Vector(16.5, 76.2, 0), Vector(16.5, 38.1, 0)),
    Part.LineSegment(Vector(16.5, 38.1, 0), Vector(17.8, 38.1, 0)),
    Part.LineSegment(Vector(17.8, 38.1, 0), Vector(17.8, 76.2, 0)),
    Part.LineSegment(Vector(17.8, 76.2, 0), Vector(16.5, 76.2, 0)),
], False)
sketch18.addConstraint([
    Sketcher.Constraint("Coincident", 0, 2, 1, 1),
    Sketcher.Constraint("Coincident", 1, 2, 2, 1),
    Sketcher.Constraint("Coincident", 2, 2, 3, 1),
    Sketcher.Constraint("Coincident", 3, 2, 0, 1),
    Sketcher.Constraint("Vertical", 0),
    Sketcher.Constraint("Horizontal", 1),
    Sketcher.Constraint("Vertical", 2),
    Sketcher.Constraint("Horizontal", 3),
    Sketcher.Constraint("DistanceY", 0, 2, 0, 1, Q("1.5 in")),
    Sketcher.Constraint("DistanceX", 1, 1, 1, 2, Q("0.05 in")),
    Sketcher.Constraint("DistanceY", -1, 1, 0, 2, Q("1.5 in")),
    Sketcher.Constraint("DistanceX", -1, 1, 1, 2, Q("0.7 in")),
])
pocket14 = doc.addObject("PartDesign::Pocket", "Pocket013")
body.addObject(pocket14)
pocket14.Profile = sketch18
pocket14.Length = Q("0.25 in")

# Sketch on YZ plane
sketch19 = doc.addObject("Sketcher::SketchObject", "Sketch018")
body.addObject(sketch19)
sketch19.AttachmentSupport = (doc.YZ_Plane, [""])
sketch19.MapMode = "FlatFace"
sketch19.AttachmentOffset = App.Placement(Vector(0, 0, 1.5 * 25.4), App.Rotation())
sketch19.addGeometry([
    Part.LineSegment(Vector(21.6, 76.2, 0), Vector(20.3, 76.2, 0)),
    Part.LineSegment(Vector(20.3, 76.2, 0), Vector(20.3, 38.1, 0)),
    Part.LineSegment(Vector(20.3, 38.1, 0), Vector(21.6, 38.1, 0)),
    Part.LineSegment(Vector(21.6, 38.1, 0), Vector(21.6, 76.2, 0)),
], False)
sketch19.addConstraint([
    Sketcher.Constraint("Coincident", 0, 2, 1, 1),
    Sketcher.Constraint("Coincident", 1, 2, 2, 1),
    Sketcher.Constraint("Coincident", 2, 2, 3, 1),
    Sketcher.Constraint("Coincident", 3, 2, 0, 1),
    Sketcher.Constraint("Horizontal", 0),
    Sketcher.Constraint("Vertical", 1),
    Sketcher.Constraint("Horizontal", 2),
    Sketcher.Constraint("Vertical", 3),
    Sketcher.Constraint("DistanceY", 1, 2, 1, 1, Q("1.5 in")),
    Sketcher.Constraint("DistanceX", 0, 2, 0, 1, Q("0.05 in")),
    Sketcher.Constraint("DistanceY", -1, 1, 1, 2, Q("1.5 in")),
    Sketcher.Constraint("DistanceX", -1, 1, 0, 2, Q("0.8 in")),
])
pocket15 = doc.addObject("PartDesign::Pocket", "Pocket014")
body.addObject(pocket15)
pocket15.Profile = sketch19
pocket15.Length = Q("0.25 in")

# Sketch on XY plane
sketch20 = doc.addObject("Sketcher::SketchObject", "Sketch019")
body.addObject(sketch20)
sketch20.AttachmentSupport = (doc.XY_Plane, [""])
sketch20.MapMode = "FlatFace"
sketch20.AttachmentOffset = App.Placement(Vector(0, 0, 1.5 * 25.4), App.Rotation())
sketch20.addGeometry([
    Part.LineSegment(Vector(38.1, 21.6, 0), Vector(38.1, 20.3, 0)),  # 0
    Part.LineSegment(Vector(38.1, 20.3, 0), Vector(76.2, 20.3, 0)),  # 1
    Part.LineSegment(Vector(76.2, 20.3, 0), Vector(76.2, 21.6, 0)),  # 2
    Part.LineSegment(Vector(76.2, 21.6, 0), Vector(38.1, 21.6, 0)),  # 3
    Part.LineSegment(Vector(76.2, 16.5, 0), Vector(76.2, 17.8, 0)),  # 4
    Part.LineSegment(Vector(76.2, 17.8, 0), Vector(38.1, 17.8, 0)),  # 5
    Part.LineSegment(Vector(38.1, 17.8, 0), Vector(38.1, 16.5, 0)),  # 6
    Part.LineSegment(Vector(38.1, 16.5, 0), Vector(76.2, 16.5, 0)),  # 7
], False)
sketch20.addConstraint([
    Sketcher.Constraint("Coincident", 0, 2, 1, 1),
    Sketcher.Constraint("Coincident", 1, 2, 2, 1),
    Sketcher.Constraint("Coincident", 2, 2, 3, 1),
    Sketcher.Constraint("Coincident", 3, 2, 0, 1),
    Sketcher.Constraint("Coincident", 4, 2, 5, 1),
    Sketcher.Constraint("Coincident", 5, 2, 6, 1),
    Sketcher.Constraint("Coincident", 6, 2, 7, 1),
    Sketcher.Constraint("Coincident", 7, 2, 4, 1),
    Sketcher.Constraint("Vertical", 0),
    Sketcher.Constraint("Horizontal", 1),
    Sketcher.Constraint("Vertical", 2),
    Sketcher.Constraint("Horizontal", 3),
    Sketcher.Constraint("Vertical", 4),
    Sketcher.Constraint("Horizontal", 5),
    Sketcher.Constraint("Vertical", 6),
    Sketcher.Constraint("Horizontal", 7),
    Sketcher.Constraint("Vertical", 2, 2, 4, 2),
    Sketcher.Constraint("Vertical", 3, 2, 5, 2),
    Sketcher.Constraint("Equal", 2, 4),
    Sketcher.Constraint("DistanceX", 1, 1, 1, 2, Q("1.5 in")),
    Sketcher.Constraint("DistanceY", 0, 2, 0, 1, Q("0.05 in")),
    Sketcher.Constraint("DistanceX", -1, 1, 0, 2, Q("1.5 in")),
    Sketcher.Constraint("DistanceY", -1, 1, 0, 2, Q("0.8 in")),
    Sketcher.Constraint("DistanceY", -1, 1, 4, 2, Q("0.7 in")),
])
pocket16 = doc.addObject("PartDesign::Pocket", "Pocket015")
body.addObject(pocket16)
pocket16.Profile = sketch20
pocket16.Length = Q("0.25 in")

# Sketch on XZ plane
sketch21 = doc.addObject("Sketcher::SketchObject", "Sketch020")
body.addObject(sketch21)
sketch21.AttachmentSupport = (doc.XZ_Plane, [""])
sketch21.MapMode = "FlatFace"
sketch21.AttachmentOffset = App.Placement(Vector(0, 0, -1.5 * 25.4), App.Rotation())
sketch21.addGeometry([
    Part.LineSegment(Vector(38.1, 16.5, 0), Vector(38.1, 17.8, 0)),  # 0
    Part.LineSegment(Vector(38.1, 17.8, 0), Vector(76.2, 17.8, 0)),  # 1
    Part.LineSegment(Vector(76.2, 17.8, 0), Vector(76.2, 16.5, 0)),  # 2
    Part.LineSegment(Vector(76.2, 16.5, 0), Vector(38.1, 16.5, 0)),  # 3
    Part.LineSegment(Vector(76.2, 20.3, 0), Vector(38.1, 20.3, 0)),  # 4
    Part.LineSegment(Vector(38.1, 20.3, 0), Vector(38.1, 21.6, 0)),  # 5
    Part.LineSegment(Vector(38.1, 21.6, 0), Vector(76.2, 21.6, 0)),  # 6
    Part.LineSegment(Vector(76.2, 21.6, 0), Vector(76.2, 20.3, 0)),  # 7
], False)
sketch21.addConstraint([
    Sketcher.Constraint("Coincident", 0, 2, 1, 1),
    Sketcher.Constraint("Coincident", 1, 2, 2, 1),
    Sketcher.Constraint("Coincident", 2, 2, 3, 1),
    Sketcher.Constraint("Coincident", 3, 2, 0, 1),
    Sketcher.Constraint("Coincident", 4, 2, 5, 1),
    Sketcher.Constraint("Coincident", 5, 2, 6, 1),
    Sketcher.Constraint("Coincident", 6, 2, 7, 1),
    Sketcher.Constraint("Coincident", 7, 2, 4, 1),
    Sketcher.Constraint("Vertical", 0),
    Sketcher.Constraint("Horizontal", 1),
    Sketcher.Constraint("Vertical", 2),
    Sketcher.Constraint("Horizontal", 3),
    Sketcher.Constraint("Horizontal", 4),
    Sketcher.Constraint("Vertical", 5),
    Sketcher.Constraint("Horizontal", 6),
    Sketcher.Constraint("Vertical", 7),
    Sketcher.Constraint("Vertical", 3, 2, 4, 2),
    Sketcher.Constraint("Vertical", 2, 2, 6, 2),
    Sketcher.Constraint("Equal", 2, 5),
    Sketcher.Constraint("DistanceX", 1, 1, 1, 2, Q("1.5 in")),
    Sketcher.Constraint("DistanceY", 0, 1, 0, 2, Q("0.05 in")),
    Sketcher.Constraint("DistanceX", -1, 1, 0, 2, Q("1.5 in")),
    Sketcher.Constraint("DistanceY", -1, 1, 0, 2, Q("0.7 in")),
    Sketcher.Constraint("DistanceY", -1, 1, 4, 2, Q("0.8 in")),
])
pocket17 = doc.addObject("PartDesign::Pocket", "Pocket016")
body.addObject(pocket17)
pocket17.Profile = sketch21
pocket17.Length = Q("0.25 in")
pocket17.Reversed = True

# Sketch on YZ plane
sketch22 = doc.addObject("Sketcher::SketchObject", "Sketch021")
body.addObject(sketch22)
sketch22.AttachmentSupport = (doc.YZ_Plane, [""])
sketch22.MapMode = "FlatFace"
sketch22.AttachmentOffset = App.Placement(Vector(0, 0, 1.5 * 25.4), App.Rotation())
sketch22.addGeometry([
    Part.LineSegment(Vector(76.2, 17.8, 0), Vector(32, 17.8, 0)),  # 0
    Part.LineSegment(Vector(32, 17.8, 0), Vector(32, 16.5, 0)),  # 1
    Part.LineSegment(Vector(32, 16.5, 0), Vector(76.2, 16.5, 0)),  # 2
    Part.LineSegment(Vector(76.2, 16.5, 0), Vector(76.2, 17.8, 0)),  # 3
    Part.LineSegment(Vector(76.2, 21.6, 0), Vector(32, 21.6, 0)),  # 4
    Part.LineSegment(Vector(32, 21.6, 0), Vector(32, 20.3, 0)),  # 5
    Part.LineSegment(Vector(32, 20.3, 0), Vector(76.2, 20.3, 0)),  # 6
    Part.LineSegment(Vector(76.2, 20.3, 0), Vector(76.2, 21.6, 0)),  # 7
], False)
sketch22.addConstraint([
    Sketcher.Constraint("Coincident", 0, 2, 1, 1),
    Sketcher.Constraint("Coincident", 1, 2, 2, 1),
    Sketcher.Constraint("Coincident", 2, 2, 3, 1),
    Sketcher.Constraint("Coincident", 3, 2, 0, 1),
    Sketcher.Constraint("Coincident", 4, 2, 5, 1),
    Sketcher.Constraint("Coincident", 5, 2, 6, 1),
    Sketcher.Constraint("Coincident", 6, 2, 7, 1),
    Sketcher.Constraint("Coincident", 7, 2, 4, 1),
    Sketcher.Constraint("Horizontal", 0),
    Sketcher.Constraint("Vertical", 1),
    Sketcher.Constraint("Horizontal", 2),
    Sketcher.Constraint("Vertical", 3),
    Sketcher.Constraint("Horizontal", 4),
    Sketcher.Constraint("Vertical", 5),
    Sketcher.Constraint("Horizontal", 6),
    Sketcher.Constraint("Vertical", 7),
    Sketcher.Constraint("Vertical", 1, 2, 4, 2),
    Sketcher.Constraint("Vertical", 3, 2, 6, 2),
    Sketcher.Constraint("Equal", 3, 5),
    Sketcher.Constraint("DistanceY", 1, 2, 1, 1, Q("0.05 in")),
    Sketcher.Constraint("DistanceX", -1, 1, 2, 2, Q("3 in")),
    Sketcher.Constraint("DistanceX", 0, 2, 0, 1, Q("1.74 in")),
    Sketcher.Constraint("DistanceY", -1, 1, 0, 2, Q("0.7 in")),
    Sketcher.Constraint("DistanceY", -1, 1, 5, 2, Q("0.8 in")),
])
pocket18 = doc.addObject("PartDesign::Pocket", "Pocket017")
body.addObject(pocket18)
pocket18.Profile = sketch22
pocket18.Length = Q("0.25 in")

# Sketch on XY plane
sketch23 = doc.addObject("Sketcher::SketchObject", "Sketch022")
body.addObject(sketch23)
sketch23.AttachmentSupport = (doc.XY_Plane, [""])
sketch23.MapMode = "FlatFace"
sketch23.AttachmentOffset = App.Placement(Vector(0, 0, 0.85 * 25.4), App.Rotation())
sketch23.addGeometry([
    Part.LineSegment(Vector(32, 32, 0), Vector(32, 38, 0)),
    Part.LineSegment(Vector(32, 38, 0), Vector(38, 38, 0)),
    Part.LineSegment(Vector(38, 38, 0), Vector(38, 32, 0)),
    Part.LineSegment(Vector(38, 32, 0), Vector(32, 32, 0)),
], False)
sketch23.addConstraint([
    Sketcher.Constraint("Coincident", 0, 2, 1, 1),
    Sketcher.Constraint("Coincident", 1, 2, 2, 1),
    Sketcher.Constraint("Coincident", 2, 2, 3, 1),
    Sketcher.Constraint("Coincident", 3, 2, 0, 1),
    Sketcher.Constraint("Vertical", 0),
    Sketcher.Constraint("Horizontal", 1),
    Sketcher.Constraint("Vertical", 2),
    Sketcher.Constraint("Horizontal", 3),
    Sketcher.Constraint("Equal", 3, 0),
    Sketcher.Constraint("DistanceX", 1, 1, 1, 2, Q("0.24 in")),
    Sketcher.Constraint("DistanceY", -1, 1, 0, 2, Q("1.5 in")),
    Sketcher.Constraint("DistanceX", -1, 1, 1, 2, Q("1.5 in")),
])
pad5 = doc.addObject("PartDesign::Pad", "Pad004")
body.addObject(pad5)
pad5.Profile = sketch23
pad5.Length = Q("0.2 in")
pad5.Reversed = True

# Sketch on YZ plane
sketch24 = doc.addObject("Sketcher::SketchObject", "Sketch023")
body.addObject(sketch24)
sketch24.AttachmentSupport = (doc.YZ_Plane, [""])
sketch24.MapMode = "FlatFace"
sketch24.AttachmentOffset = App.Placement(Vector(0, 0, 0.85 * 25.4), App.Rotation())
sketch24.addGeometry([
    Part.LineSegment(Vector(32, 32, 0), Vector(32, 38, 0)),
    Part.LineSegment(Vector(32, 38, 0), Vector(38, 38, 0)),
    Part.LineSegment(Vector(38, 38, 0), Vector(38, 32, 0)),
    Part.LineSegment(Vector(38, 32, 0), Vector(32, 32, 0)),
], False)
sketch24.addConstraint([
    Sketcher.Constraint("Coincident", 0, 2, 1, 1),
    Sketcher.Constraint("Coincident", 1, 2, 2, 1),
    Sketcher.Constraint("Coincident", 2, 2, 3, 1),
    Sketcher.Constraint("Coincident", 3, 2, 0, 1),
    Sketcher.Constraint("Vertical", 0),
    Sketcher.Constraint("Horizontal", 1),
    Sketcher.Constraint("Vertical", 2),
    Sketcher.Constraint("Horizontal", 3),
    Sketcher.Constraint("Equal", 3, 0),
    Sketcher.Constraint("DistanceX", 1, 1, 1, 2, Q("0.24 in")),
    Sketcher.Constraint("DistanceY", -1, 1, 0, 2, Q("1.5 in")),
    Sketcher.Constraint("DistanceX", -1, 1, 1, 2, Q("1.5 in")),
])
pad6 = doc.addObject("PartDesign::Pad", "Pad005")
body.addObject(pad6)
pad6.Profile = sketch24
pad6.Length = Q("0.2 in")
pad6.Reversed = True

doc.recompute()
